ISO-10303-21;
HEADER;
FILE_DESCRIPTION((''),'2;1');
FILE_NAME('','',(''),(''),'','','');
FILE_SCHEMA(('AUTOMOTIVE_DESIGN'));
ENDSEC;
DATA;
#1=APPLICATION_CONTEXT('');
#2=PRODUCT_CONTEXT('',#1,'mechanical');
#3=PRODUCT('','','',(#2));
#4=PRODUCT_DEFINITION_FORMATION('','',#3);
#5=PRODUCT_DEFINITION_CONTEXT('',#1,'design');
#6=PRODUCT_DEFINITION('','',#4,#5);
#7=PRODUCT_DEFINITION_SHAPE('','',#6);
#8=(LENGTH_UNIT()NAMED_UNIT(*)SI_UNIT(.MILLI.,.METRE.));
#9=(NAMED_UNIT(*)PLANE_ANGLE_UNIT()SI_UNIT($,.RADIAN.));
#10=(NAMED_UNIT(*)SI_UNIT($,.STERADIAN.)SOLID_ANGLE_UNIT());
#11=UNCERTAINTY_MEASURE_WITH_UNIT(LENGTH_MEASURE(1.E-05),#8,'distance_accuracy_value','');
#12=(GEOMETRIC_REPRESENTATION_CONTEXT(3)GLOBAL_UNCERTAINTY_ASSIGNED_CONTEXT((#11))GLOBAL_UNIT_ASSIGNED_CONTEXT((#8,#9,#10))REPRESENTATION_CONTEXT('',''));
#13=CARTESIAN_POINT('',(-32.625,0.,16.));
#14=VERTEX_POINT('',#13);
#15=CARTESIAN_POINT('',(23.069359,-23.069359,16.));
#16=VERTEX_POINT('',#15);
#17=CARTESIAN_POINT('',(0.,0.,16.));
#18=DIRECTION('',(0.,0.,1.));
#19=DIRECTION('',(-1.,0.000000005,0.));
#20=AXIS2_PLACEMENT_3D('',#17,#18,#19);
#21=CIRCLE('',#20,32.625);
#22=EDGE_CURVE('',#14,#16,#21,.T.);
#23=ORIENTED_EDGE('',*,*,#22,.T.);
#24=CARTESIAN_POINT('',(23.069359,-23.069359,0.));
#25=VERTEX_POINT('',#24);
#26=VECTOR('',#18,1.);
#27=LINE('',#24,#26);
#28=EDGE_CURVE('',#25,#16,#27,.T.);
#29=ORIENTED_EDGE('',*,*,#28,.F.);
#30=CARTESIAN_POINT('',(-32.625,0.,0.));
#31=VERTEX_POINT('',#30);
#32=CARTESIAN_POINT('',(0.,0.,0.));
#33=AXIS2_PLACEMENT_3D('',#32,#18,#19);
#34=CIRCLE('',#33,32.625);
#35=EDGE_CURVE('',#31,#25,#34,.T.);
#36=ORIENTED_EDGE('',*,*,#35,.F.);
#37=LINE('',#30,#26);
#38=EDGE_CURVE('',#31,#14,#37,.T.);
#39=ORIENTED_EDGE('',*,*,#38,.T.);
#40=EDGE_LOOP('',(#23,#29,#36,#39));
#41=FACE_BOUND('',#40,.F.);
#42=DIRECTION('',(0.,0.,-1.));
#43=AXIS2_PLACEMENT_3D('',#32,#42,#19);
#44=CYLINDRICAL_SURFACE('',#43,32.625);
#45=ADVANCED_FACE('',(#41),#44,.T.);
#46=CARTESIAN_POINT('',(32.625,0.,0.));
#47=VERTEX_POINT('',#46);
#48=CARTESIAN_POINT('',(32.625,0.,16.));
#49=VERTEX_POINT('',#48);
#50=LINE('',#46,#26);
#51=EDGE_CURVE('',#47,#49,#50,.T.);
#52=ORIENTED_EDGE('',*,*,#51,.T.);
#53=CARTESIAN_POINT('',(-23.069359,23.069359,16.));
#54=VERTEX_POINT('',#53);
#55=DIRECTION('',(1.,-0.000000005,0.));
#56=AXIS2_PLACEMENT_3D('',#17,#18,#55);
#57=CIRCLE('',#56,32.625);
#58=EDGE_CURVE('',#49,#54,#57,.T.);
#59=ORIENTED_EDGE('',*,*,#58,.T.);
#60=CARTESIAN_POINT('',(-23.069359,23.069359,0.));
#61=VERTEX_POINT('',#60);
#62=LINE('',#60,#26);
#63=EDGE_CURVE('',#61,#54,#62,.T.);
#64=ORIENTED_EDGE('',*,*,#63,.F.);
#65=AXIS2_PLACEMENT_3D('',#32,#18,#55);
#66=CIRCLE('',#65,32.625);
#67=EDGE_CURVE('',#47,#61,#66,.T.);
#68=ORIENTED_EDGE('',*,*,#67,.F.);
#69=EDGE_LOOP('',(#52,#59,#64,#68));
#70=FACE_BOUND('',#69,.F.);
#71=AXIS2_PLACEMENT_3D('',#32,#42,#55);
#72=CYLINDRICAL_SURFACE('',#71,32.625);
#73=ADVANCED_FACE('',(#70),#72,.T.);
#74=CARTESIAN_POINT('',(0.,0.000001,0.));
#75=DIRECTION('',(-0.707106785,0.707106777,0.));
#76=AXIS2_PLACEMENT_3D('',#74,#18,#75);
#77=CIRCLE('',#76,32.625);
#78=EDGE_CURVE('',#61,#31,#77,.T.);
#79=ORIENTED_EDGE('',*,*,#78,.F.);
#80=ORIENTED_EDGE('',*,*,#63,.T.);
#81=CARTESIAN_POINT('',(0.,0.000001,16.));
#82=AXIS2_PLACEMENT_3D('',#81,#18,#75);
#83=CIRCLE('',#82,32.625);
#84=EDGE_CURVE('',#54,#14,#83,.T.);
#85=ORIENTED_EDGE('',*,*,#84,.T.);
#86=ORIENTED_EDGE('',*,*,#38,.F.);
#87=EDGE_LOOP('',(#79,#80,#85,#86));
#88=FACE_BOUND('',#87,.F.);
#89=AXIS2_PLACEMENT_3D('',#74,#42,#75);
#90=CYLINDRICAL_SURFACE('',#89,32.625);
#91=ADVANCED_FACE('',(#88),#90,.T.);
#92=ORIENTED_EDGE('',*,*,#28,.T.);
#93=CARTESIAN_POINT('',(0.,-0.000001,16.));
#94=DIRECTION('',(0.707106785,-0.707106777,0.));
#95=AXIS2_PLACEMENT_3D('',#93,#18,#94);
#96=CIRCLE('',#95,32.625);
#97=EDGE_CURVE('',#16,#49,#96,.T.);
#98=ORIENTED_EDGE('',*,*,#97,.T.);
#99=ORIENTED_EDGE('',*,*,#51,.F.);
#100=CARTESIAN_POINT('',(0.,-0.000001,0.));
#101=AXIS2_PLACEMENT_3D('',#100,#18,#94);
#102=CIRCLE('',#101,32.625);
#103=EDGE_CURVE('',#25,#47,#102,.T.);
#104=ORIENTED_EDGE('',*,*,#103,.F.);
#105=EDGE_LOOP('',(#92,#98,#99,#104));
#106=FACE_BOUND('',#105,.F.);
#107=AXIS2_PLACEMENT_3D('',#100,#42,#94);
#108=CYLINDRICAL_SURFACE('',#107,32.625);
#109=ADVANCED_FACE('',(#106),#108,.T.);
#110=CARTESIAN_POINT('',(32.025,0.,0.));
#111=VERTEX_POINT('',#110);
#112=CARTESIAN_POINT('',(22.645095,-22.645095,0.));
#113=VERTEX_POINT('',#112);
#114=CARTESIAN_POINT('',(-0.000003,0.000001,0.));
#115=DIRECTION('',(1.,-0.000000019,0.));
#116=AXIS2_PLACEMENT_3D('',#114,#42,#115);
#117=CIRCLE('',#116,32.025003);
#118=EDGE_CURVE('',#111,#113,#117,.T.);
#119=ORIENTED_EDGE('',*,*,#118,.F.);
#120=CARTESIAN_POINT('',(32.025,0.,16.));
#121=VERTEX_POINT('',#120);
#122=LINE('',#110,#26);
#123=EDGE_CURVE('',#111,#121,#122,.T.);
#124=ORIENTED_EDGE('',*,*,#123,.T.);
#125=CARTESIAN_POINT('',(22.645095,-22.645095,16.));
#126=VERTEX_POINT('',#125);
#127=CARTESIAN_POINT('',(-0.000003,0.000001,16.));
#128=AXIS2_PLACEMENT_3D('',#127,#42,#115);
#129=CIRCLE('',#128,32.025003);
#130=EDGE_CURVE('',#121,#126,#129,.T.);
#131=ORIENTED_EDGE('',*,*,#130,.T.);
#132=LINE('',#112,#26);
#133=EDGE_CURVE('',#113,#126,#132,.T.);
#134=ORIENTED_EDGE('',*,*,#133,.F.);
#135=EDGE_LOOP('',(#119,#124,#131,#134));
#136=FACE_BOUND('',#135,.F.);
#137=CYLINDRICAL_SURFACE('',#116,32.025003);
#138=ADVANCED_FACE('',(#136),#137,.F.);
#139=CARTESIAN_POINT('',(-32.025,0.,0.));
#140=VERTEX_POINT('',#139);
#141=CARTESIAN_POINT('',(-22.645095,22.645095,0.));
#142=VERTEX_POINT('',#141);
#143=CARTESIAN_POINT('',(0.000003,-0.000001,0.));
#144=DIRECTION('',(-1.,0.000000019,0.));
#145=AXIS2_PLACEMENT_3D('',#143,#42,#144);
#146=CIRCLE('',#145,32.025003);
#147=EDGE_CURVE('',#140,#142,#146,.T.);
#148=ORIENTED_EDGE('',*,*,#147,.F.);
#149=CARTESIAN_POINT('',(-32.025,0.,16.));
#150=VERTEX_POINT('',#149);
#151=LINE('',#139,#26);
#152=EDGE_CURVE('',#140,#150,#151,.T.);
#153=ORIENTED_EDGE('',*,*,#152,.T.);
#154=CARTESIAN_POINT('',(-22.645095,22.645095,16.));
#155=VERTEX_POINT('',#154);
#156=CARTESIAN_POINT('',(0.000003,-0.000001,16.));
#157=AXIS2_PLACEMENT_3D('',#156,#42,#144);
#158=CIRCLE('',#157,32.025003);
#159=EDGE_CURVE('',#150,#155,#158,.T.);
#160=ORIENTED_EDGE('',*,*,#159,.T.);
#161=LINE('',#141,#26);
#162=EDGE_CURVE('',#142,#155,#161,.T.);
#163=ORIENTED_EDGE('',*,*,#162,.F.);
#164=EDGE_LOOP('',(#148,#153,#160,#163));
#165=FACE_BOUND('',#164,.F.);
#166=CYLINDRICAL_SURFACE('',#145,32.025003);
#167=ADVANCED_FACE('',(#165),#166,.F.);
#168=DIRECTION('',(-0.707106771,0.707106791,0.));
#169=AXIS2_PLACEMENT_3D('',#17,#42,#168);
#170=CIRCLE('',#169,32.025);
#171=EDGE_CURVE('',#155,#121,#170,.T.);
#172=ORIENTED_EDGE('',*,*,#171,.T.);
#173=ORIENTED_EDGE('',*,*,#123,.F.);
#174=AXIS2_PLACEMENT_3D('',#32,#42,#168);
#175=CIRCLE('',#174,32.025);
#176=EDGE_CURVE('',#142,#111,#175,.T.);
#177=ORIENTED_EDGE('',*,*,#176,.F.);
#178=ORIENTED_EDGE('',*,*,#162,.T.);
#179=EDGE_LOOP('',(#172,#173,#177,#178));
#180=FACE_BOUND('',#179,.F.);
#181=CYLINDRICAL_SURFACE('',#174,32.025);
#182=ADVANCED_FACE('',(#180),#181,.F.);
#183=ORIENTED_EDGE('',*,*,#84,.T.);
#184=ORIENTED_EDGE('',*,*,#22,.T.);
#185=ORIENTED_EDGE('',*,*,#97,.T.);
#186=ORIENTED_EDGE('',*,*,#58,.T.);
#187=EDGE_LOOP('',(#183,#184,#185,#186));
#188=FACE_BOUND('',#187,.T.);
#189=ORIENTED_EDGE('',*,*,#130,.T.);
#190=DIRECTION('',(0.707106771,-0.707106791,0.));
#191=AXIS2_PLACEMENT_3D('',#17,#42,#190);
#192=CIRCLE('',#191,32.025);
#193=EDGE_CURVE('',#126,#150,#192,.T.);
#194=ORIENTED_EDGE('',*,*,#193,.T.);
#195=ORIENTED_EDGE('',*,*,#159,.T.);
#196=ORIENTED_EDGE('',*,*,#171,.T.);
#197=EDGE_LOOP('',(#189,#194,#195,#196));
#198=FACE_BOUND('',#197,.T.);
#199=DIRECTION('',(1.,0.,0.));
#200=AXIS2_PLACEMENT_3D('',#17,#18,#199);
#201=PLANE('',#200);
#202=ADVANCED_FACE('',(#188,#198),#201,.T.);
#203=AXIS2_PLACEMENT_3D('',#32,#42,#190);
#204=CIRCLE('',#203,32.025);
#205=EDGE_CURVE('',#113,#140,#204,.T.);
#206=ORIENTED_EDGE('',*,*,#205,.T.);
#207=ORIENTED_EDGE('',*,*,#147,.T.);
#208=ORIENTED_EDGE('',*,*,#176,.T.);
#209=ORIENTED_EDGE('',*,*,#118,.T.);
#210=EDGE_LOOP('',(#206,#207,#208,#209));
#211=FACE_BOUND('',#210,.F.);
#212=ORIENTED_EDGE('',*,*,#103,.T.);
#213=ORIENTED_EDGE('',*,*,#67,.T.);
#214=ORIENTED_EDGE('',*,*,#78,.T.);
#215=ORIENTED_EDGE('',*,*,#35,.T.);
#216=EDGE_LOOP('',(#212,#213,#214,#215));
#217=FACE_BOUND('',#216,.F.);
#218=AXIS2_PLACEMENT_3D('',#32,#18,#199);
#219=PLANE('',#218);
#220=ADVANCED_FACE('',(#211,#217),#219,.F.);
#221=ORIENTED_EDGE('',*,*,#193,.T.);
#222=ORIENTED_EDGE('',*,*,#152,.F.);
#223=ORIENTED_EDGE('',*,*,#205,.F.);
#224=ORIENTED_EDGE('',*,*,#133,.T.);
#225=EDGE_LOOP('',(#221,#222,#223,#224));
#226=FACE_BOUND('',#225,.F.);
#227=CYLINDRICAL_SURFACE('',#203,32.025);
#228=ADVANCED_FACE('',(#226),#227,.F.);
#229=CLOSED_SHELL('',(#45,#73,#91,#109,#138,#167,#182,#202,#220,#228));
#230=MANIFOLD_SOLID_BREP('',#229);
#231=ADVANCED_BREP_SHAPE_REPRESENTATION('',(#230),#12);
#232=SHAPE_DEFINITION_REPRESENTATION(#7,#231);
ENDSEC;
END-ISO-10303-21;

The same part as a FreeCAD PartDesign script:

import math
import FreeCAD as App
import Part
import Sketcher

doc = App.newDocument("Part")
params = doc.addObject("Spreadsheet::Sheet", "Params")
for row, (alias, value) in enumerate([
    ("pad1_length", "16 mm"),
], start=1):
    params.set(f"A{row}", alias)
    params.set(f"B{row}", "=" + value)
    params.setAlias(f"B{row}", alias)

body = doc.addObject("PartDesign::Body", "Body")

# Sketch on XY plane
sketch1 = doc.addObject("Sketcher::SketchObject", "Sketch")
body.addObject(sketch1)
sketch1.AttachmentSupport = (doc.XY_Plane, [""])
sketch1.MapMode = "FlatFace"
sketch1.addGeometry([
    Part.ArcOfCircle(Part.Circle(App.Vector(0, 0, 0), App.Vector(0, 0, 1), 33), math.radians(135), math.radians(180)),  # 0
    Part.ArcOfCircle(Part.Circle(App.Vector(0, 0, 0), App.Vector(0, 0, 1), 33), math.radians(180), math.radians(315)),  # 1
    Part.ArcOfCircle(Part.Circle(App.Vector(0, 0, 0), App.Vector(0, 0, 1), 33), math.radians(-45), math.radians(0)),  # 2
    Part.ArcOfCircle(Part.Circle(App.Vector(0, 0, 0), App.Vector(0, 0, 1), 33), math.radians(0), math.radians(135)),  # 3
    Part.ArcOfCircle(Part.Circle(App.Vector(0, 0, 0), App.Vector(0, 0, 1), 32), math.radians(135), math.radians(180)),  # 4
    Part.ArcOfCircle(Part.Circle(App.Vector(0, 0, 0), App.Vector(0, 0, 1), 32), math.radians(0), math.radians(135)),  # 5
    Part.ArcOfCircle(Part.Circle(App.Vector(0, 0, 0), App.Vector(0, 0, 1), 32), math.radians(-45), math.radians(0)),  # 6
    Part.ArcOfCircle(Part.Circle(App.Vector(0, 0, 0), App.Vector(0, 0, 1), 32), math.radians(-180), math.radians(-45)),  # 7
], False)
sketch1.addConstraint([
    Sketcher.Constraint("Tangent", 0, 2, 1, 1),
    Sketcher.Constraint("Tangent", 1, 2, 2, 1),
    Sketcher.Constraint("Tangent", 2, 2, 3, 1),
    Sketcher.Constraint("Tangent", 3, 2, 0, 1),
    Sketcher.Constraint("Tangent", 4, 1, 5, 2),
    Sketcher.Constraint("Tangent", 5, 1, 6, 2),
    Sketcher.Constraint("Tangent", 6, 1, 7, 2),
    Sketcher.Constraint("Tangent", 7, 1, 4, 2),
    Sketcher.Constraint("Coincident", 0, 3, -1, 1),
    Sketcher.Constraint("Coincident", 4, 3, -1, 1),
    Sketcher.Constraint("Equal", 0, 1),
    Sketcher.Constraint("Symmetric", 4, 1, 6, 1, -1, 1),
    Sketcher.Constraint("PointOnObject", 0, 2, -1),
    Sketcher.Constraint("PointOnObject", 2, 2, -1),
    Sketcher.Constraint("PointOnObject", 5, 1, -1),
    Sketcher.Constraint("PointOnObject", 7, 1, -1),
    Sketcher.Constraint("Radius", 0, 32.625),
    Sketcher.Constraint("Radius", 5, 32.025),
    Sketcher.Constraint("DistanceX", -1, 1, 1, 2, 23.069359),
    Sketcher.Constraint("DistanceX", 3, 2, -1, 1, 23.069359),
    Sketcher.Constraint("DistanceX", 4, 1, 6, 3, 22.645092),
])
pad1 = doc.addObject("PartDesign::Pad", "Pad")
body.addObject(pad1)
pad1.Profile = sketch1
pad1.setExpression("Length", "Params.pad1_length")

doc.recompute()
